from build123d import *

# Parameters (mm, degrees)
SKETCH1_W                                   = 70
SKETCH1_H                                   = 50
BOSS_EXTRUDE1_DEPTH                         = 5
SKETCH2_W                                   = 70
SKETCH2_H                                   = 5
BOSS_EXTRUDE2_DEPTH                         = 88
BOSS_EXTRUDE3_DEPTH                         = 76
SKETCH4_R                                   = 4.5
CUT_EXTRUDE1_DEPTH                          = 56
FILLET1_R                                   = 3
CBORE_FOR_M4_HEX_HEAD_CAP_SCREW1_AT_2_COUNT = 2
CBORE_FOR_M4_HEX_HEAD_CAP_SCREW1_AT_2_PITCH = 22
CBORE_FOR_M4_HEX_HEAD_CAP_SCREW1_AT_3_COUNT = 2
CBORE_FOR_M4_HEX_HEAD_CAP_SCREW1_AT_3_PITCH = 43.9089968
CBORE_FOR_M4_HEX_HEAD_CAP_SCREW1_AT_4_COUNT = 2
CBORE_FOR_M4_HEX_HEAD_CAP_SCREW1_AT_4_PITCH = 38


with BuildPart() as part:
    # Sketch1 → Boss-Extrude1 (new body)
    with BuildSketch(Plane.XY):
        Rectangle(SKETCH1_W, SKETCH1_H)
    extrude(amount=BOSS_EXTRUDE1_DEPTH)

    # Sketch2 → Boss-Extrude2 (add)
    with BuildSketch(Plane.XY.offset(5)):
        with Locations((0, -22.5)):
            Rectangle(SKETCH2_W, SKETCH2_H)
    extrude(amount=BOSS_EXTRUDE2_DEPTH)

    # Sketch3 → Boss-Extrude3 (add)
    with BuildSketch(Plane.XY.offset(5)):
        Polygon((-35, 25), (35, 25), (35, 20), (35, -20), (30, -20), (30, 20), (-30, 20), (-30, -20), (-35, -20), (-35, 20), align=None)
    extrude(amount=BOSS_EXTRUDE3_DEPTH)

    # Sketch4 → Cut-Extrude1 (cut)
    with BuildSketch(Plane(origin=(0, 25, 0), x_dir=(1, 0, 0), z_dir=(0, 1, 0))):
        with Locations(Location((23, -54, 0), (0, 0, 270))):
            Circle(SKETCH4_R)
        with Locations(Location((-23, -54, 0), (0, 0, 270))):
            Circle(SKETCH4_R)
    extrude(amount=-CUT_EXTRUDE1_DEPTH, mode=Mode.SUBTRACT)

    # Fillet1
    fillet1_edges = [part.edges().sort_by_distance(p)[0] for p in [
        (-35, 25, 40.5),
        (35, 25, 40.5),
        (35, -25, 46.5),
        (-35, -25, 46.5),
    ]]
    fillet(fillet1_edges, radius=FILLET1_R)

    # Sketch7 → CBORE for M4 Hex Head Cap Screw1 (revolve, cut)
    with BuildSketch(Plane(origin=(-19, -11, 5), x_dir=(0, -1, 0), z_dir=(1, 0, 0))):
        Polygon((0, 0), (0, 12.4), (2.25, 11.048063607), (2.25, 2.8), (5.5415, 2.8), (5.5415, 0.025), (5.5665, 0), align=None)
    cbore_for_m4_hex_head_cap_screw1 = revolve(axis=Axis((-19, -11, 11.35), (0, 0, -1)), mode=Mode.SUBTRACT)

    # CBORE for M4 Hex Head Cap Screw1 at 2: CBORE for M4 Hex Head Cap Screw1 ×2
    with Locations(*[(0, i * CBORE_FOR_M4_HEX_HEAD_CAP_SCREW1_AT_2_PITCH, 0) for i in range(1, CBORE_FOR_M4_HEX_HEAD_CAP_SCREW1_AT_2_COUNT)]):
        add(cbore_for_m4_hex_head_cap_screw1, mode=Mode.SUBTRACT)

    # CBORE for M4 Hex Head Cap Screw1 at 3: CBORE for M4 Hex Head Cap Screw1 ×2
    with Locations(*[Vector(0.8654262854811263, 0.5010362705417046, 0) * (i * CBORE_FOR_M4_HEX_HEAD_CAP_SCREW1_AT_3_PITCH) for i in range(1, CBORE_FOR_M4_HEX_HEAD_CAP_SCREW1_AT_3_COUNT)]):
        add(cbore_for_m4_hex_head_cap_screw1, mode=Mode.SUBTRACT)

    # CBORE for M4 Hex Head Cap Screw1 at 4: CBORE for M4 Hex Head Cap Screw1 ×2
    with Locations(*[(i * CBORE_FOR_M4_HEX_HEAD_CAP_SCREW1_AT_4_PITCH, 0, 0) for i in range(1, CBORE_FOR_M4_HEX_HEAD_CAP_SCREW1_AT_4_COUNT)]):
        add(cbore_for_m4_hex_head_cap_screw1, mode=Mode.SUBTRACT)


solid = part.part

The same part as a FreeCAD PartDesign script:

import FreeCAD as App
import Part
import Sketcher
Q = App.Units.Quantity


def edges_at(feature, points):
    """Names of the edges that pass closest to the given points."""
    edges = feature.Shape.Edges
    near = lambda p: min(range(len(edges)), key=lambda i: edges[i].distToShape(Part.Vertex(*p))[0])
    return sorted({f"Edge{near(p) + 1}" for p in points})

doc = App.newDocument("Part")
body = doc.addObject("PartDesign::Body", "Body")

# Sketch on XY plane
sketch1 = body.newObject("Sketcher::SketchObject", "Sketch")
sketch1.AttachmentSupport = (doc.getObject("XY_Plane"), [""])
sketch1.MapMode = "FlatFace"
sketch1.addGeometry([
    Part.LineSegment(App.Vector(-35, 25, 0), App.Vector(-35, -25, 0)),
    Part.LineSegment(App.Vector(-35, -25, 0), App.Vector(35, -25, 0)),
    Part.LineSegment(App.Vector(35, -25, 0), App.Vector(35, 25, 0)),
    Part.LineSegment(App.Vector(35, 25, 0), App.Vector(-35, 25, 0)),
], False)
sketch1.addConstraint([
    Sketcher.Constraint("Coincident", 0, 2, 1, 1),
    Sketcher.Constraint("Coincident", 1, 2, 2, 1),
    Sketcher.Constraint("Coincident", 2, 2, 3, 1),
    Sketcher.Constraint("Coincident", 3, 2, 0, 1),
    Sketcher.Constraint("Vertical", 0),
    Sketcher.Constraint("Horizontal", 1),
    Sketcher.Constraint("Vertical", 2),
    Sketcher.Constraint("Horizontal", 3),
    Sketcher.Constraint("Symmetric", 0, 2, 2, 2, -1, 1),
    Sketcher.Constraint("DistanceX", 1, 1, 1, 2, Q("70 mm")),
    Sketcher.Constraint("DistanceY", 0, 2, 0, 1, Q("50 mm")),
])
pad1 = body.newObject("PartDesign::Pad", "Pad")
pad1.Profile = sketch1
pad1.Length = 5

# Sketch on XY plane
sketch2 = body.newObject("Sketcher::SketchObject", "Sketch001")
sketch2.AttachmentSupport = (doc.getObject("XY_Plane"), [""])
sketch2.MapMode = "FlatFace"
sketch2.AttachmentOffset = App.Placement(App.Vector(0, 0, 5), App.Rotation())
sketch2.addGeometry([
    Part.LineSegment(App.Vector(-35, -20, 0), App.Vector(-35, -25, 0)),
    Part.LineSegment(App.Vector(-35, -25, 0), App.Vector(35, -25, 0)),
    Part.LineSegment(App.Vector(35, -25, 0), App.Vector(35, -20, 0)),
    Part.LineSegment(App.Vector(35, -20, 0), App.Vector(-35, -20, 0)),
], False)
sketch2.addConstraint([
    Sketcher.Constraint("Coincident", 0, 2, 1, 1),
    Sketcher.Constraint("Coincident", 1, 2, 2, 1),
    Sketcher.Constraint("Coincident", 2, 2, 3, 1),
    Sketcher.Constraint("Coincident", 3, 2, 0, 1),
    Sketcher.Constraint("Vertical", 0),
    Sketcher.Constraint("Horizontal", 1),
    Sketcher.Constraint("Vertical", 2),
    Sketcher.Constraint("Horizontal", 3),
    Sketcher.Constraint("DistanceX", 1, 1, 1, 2, Q("70 mm")),
    Sketcher.Constraint("DistanceY", 0, 2, 0, 1, Q("5 mm")),
    Sketcher.Constraint("DistanceX", 0, 2, -1, 1, Q("35 mm")),
    Sketcher.Constraint("DistanceY", 0, 2, -1, 1, Q("25 mm")),
])
pad2 = body.newObject("PartDesign::Pad", "Pad001")
pad2.Profile = sketch2
pad2.Length = 88

# Sketch on XY plane
sketch3 = body.newObject("Sketcher::SketchObject", "Sketch002")
sketch3.AttachmentSupport = (doc.getObject("XY_Plane"), [""])
sketch3.MapMode = "FlatFace"
sketch3.AttachmentOffset = App.Placement(App.Vector(0, 0, 5), App.Rotation())
sketch3.addGeometry([
    Part.LineSegment(App.Vector(35, 25, 0), App.Vector(-35, 25, 0)),  # 0
    Part.LineSegment(App.Vector(-35, 25, 0), App.Vector(-35, -20, 0)),  # 1
    Part.LineSegment(App.Vector(-35, -20, 0), App.Vector(-30, -20, 0)),  # 2
    Part.LineSegment(App.Vector(-30, -20, 0), App.Vector(-30, 20, 0)),  # 3
    Part.LineSegment(App.Vector(-30, 20, 0), App.Vector(30, 20, 0)),  # 4
    Part.LineSegment(App.Vector(30, 20, 0), App.Vector(30, -20, 0)),  # 5
    Part.LineSegment(App.Vector(30, -20, 0), App.Vector(35, -20, 0)),  # 6
    Part.LineSegment(App.Vector(35, -20, 0), App.Vector(35, 25, 0)),  # 7
], False)
sketch3.addConstraint([
    Sketcher.Constraint("Coincident", 0, 2, 1, 1),
    Sketcher.Constraint("Coincident", 1, 2, 2, 1),
    Sketcher.Constraint("Coincident", 2, 2, 3, 1),
    Sketcher.Constraint("Coincident", 3, 2, 4, 1),
    Sketcher.Constraint("Coincident", 4, 2, 5, 1),
    Sketcher.Constraint("Coincident", 5, 2, 6, 1),
    Sketcher.Constraint("Coincident", 6, 2, 7, 1),
    Sketcher.Constraint("Coincident", 7, 2, 0, 1),
    Sketcher.Constraint("Horizontal", 0),
    Sketcher.Constraint("Vertical", 1),
    Sketcher.Constraint("Horizontal", 2),
    Sketcher.Constraint("Vertical", 3),
    Sketcher.Constraint("Horizontal", 4),
    Sketcher.Constraint("Vertical", 5),
    Sketcher.Constraint("Horizontal", 6),
    Sketcher.Constraint("Vertical", 7),
    Sketcher.Constraint("Symmetric", 2, 2, 4, 2, -1, 1),
    Sketcher.Constraint("Symmetric", 1, 2, 6, 2, -2),
    Sketcher.Constraint("DistanceX", 0, 2, 0, 1, Q("70 mm")),
    Sketcher.Constraint("DistanceX", 2, 1, 2, 2, Q("5 mm")),
    Sketcher.Constraint("DistanceY", 1, 2, 1, 1, Q("45 mm")),
    Sketcher.Constraint("DistanceY", 3, 1, 3, 2, Q("40 mm")),
])
pad3 = body.newObject("PartDesign::Pad", "Pad002")
pad3.Profile = sketch3
pad3.Length = 76

# Sketch on XZ plane
sketch4 = body.newObject("Sketcher::SketchObject", "Sketch003")
sketch4.AttachmentSupport = (doc.getObject("XZ_Plane"), [""])
sketch4.MapMode = "FlatFace"
sketch4.AttachmentOffset = App.Placement(App.Vector(0, 0, -25), App.Rotation())
sketch4.addGeometry([
    Part.Circle(App.Vector(23, 54, 0), App.Vector(0, 0, 1), 4.5),
    Part.Circle(App.Vector(-23, 54, 0), App.Vector(0, 0, 1), 4.5),
], False)
sketch4.addConstraint([
    Sketcher.Constraint("Equal", 0, 1),
    Sketcher.Constraint("Symmetric", 0, 3, 1, 3, -2),
    Sketcher.Constraint("Diameter", 0, Q("9 mm")),
    Sketcher.Constraint("DistanceX", -1, 1, 0, 3, Q("23 mm")),
    Sketcher.Constraint("DistanceY", -1, 1, 0, 3, Q("54 mm")),
])
pocket1 = body.newObject("PartDesign::Pocket", "Pocket")
pocket1.Profile = sketch4
pocket1.Length = 56
pocket1.Reversed = True
doc.recompute()

fillet = body.newObject("PartDesign::Fillet", "Fillet")
fillet.Base = (pocket1, edges_at(pocket1, [
    (-35, 25, 40.5),
    (35, 25, 40.5),
    (35, -25, 46.5),
    (-35, -25, 46.5),
]))
fillet.Radius = 3

# Sketch on YZ plane
sketch5 = body.newObject("Sketcher::SketchObject", "Sketch004")
sketch5.AttachmentSupport = (doc.getObject("YZ_Plane"), [""])
sketch5.MapMode = "FlatFace"
sketch5.AttachmentOffset = App.Placement(App.Vector(0, 0, -19), App.Rotation())
sketch5.addGeometry([
    Part.LineSegment(App.Vector(-11, -7.4, 0), App.Vector(-11, 5, 0)),  # 0
    Part.LineSegment(App.Vector(-11, 5, 0), App.Vector(-16.567, 5, 0)),  # 1
    Part.LineSegment(App.Vector(-16.567, 5, 0), App.Vector(-16.541, 4.975, 0)),  # 2
    Part.LineSegment(App.Vector(-16.541, 4.975, 0), App.Vector(-16.541, 2.2, 0)),  # 3
    Part.LineSegment(App.Vector(-16.541, 2.2, 0), App.Vector(-13.25, 2.2, 0)),  # 4
    Part.LineSegment(App.Vector(-13.25, 2.2, 0), App.Vector(-13.25, -6.048, 0)),  # 5
    Part.LineSegment(App.Vector(-13.25, -6.048, 0), App.Vector(-11, -7.4, 0)),  # 6
], False)
sketch5.addGeometry(Part.LineSegment(App.Vector(-11, 5, 0), App.Vector(-11, -7.4, 0)), True)  # axis
sketch5.addConstraint([
    Sketcher.Constraint("Coincident", 0, 2, 1, 1),
    Sketcher.Constraint("Coincident", 1, 2, 2, 1),
    Sketcher.Constraint("Coincident", 2, 2, 3, 1),
    Sketcher.Constraint("Coincident", 3, 2, 4, 1),
    Sketcher.Constraint("Coincident", 4, 2, 5, 1),
    Sketcher.Constraint("Coincident", 5, 2, 6, 1),
    Sketcher.Constraint("Coincident", 6, 2, 0, 1),
    Sketcher.Constraint("Vertical", 0),
    Sketcher.Constraint("Horizontal", 1),
    Sketcher.Constraint("Vertical", 3),
    Sketcher.Constraint("Horizontal", 4),
    Sketcher.Constraint("Vertical", 5),
    Sketcher.Constraint("Vertical", 7),
    Sketcher.Constraint("Coincident", 7, 1, 0, 2),
    Sketcher.Constraint("Equal", 0, 7),
    Sketcher.Constraint("Angle", 2, Q("-45 deg")),
    Sketcher.Constraint("Angle", 6, Q("-31 deg")),
    Sketcher.Constraint("DistanceY", 0, 1, 0, 2, Q("12.4 mm")),
    Sketcher.Constraint("DistanceX", 0, 2, -1, 1, Q("11 mm")),
    Sketcher.Constraint("DistanceY", -1, 1, 0, 2, Q("5 mm")),
    Sketcher.Constraint("DistanceY", -1, 1, 3, 2, Q("2.2 mm")),
    Sketcher.Constraint("DistanceY", 3, 2, 3, 1, Q("2.775 mm")),
    Sketcher.Constraint("DistanceX", 4, 2, -1, 1, Q("13.25 mm")),
    Sketcher.Constraint("DistanceX", 1, 2, 1, 1, Q("5.5665 mm")),
])
groove = body.newObject("PartDesign::Groove", "Groove")
groove.Profile = sketch5
groove.ReferenceAxis = (sketch5, ["Axis0"])
groove.Angle = 360
doc.recompute()

linearpattern = body.newObject("PartDesign::LinearPattern", "LinearPattern")
linearpattern.Originals = [groove]
linearpattern.Direction = (doc.getObject("Y_Axis"), [""])
linearpattern.Mode = "offset"
linearpattern.Offset = 22
linearpattern.Occurrences = 2
body.Tip = linearpattern
doc.recompute()

datumline = body.newObject("PartDesign::Line", "DatumLine")
datumline.Placement = App.Placement(App.Vector(0, 0, 0), App.Rotation(App.Vector(0, 0, 1), App.Vector(0.865426285, 0.501036271, 0)))
linearpattern2 = body.newObject("PartDesign::LinearPattern", "LinearPattern001")
linearpattern2.Originals = [groove]
linearpattern2.Direction = (datumline, [""])
linearpattern2.Mode = "offset"
linearpattern2.Offset = 43.908997
linearpattern2.Occurrences = 2
body.Tip = linearpattern2
doc.recompute()

linearpattern3 = body.newObject("PartDesign::LinearPattern", "LinearPattern002")
linearpattern3.Originals = [groove]
linearpattern3.Direction = (doc.getObject("X_Axis"), [""])
linearpattern3.Mode = "offset"
linearpattern3.Offset = 38
linearpattern3.Occurrences = 2
body.Tip = linearpattern3

doc.recompute()
